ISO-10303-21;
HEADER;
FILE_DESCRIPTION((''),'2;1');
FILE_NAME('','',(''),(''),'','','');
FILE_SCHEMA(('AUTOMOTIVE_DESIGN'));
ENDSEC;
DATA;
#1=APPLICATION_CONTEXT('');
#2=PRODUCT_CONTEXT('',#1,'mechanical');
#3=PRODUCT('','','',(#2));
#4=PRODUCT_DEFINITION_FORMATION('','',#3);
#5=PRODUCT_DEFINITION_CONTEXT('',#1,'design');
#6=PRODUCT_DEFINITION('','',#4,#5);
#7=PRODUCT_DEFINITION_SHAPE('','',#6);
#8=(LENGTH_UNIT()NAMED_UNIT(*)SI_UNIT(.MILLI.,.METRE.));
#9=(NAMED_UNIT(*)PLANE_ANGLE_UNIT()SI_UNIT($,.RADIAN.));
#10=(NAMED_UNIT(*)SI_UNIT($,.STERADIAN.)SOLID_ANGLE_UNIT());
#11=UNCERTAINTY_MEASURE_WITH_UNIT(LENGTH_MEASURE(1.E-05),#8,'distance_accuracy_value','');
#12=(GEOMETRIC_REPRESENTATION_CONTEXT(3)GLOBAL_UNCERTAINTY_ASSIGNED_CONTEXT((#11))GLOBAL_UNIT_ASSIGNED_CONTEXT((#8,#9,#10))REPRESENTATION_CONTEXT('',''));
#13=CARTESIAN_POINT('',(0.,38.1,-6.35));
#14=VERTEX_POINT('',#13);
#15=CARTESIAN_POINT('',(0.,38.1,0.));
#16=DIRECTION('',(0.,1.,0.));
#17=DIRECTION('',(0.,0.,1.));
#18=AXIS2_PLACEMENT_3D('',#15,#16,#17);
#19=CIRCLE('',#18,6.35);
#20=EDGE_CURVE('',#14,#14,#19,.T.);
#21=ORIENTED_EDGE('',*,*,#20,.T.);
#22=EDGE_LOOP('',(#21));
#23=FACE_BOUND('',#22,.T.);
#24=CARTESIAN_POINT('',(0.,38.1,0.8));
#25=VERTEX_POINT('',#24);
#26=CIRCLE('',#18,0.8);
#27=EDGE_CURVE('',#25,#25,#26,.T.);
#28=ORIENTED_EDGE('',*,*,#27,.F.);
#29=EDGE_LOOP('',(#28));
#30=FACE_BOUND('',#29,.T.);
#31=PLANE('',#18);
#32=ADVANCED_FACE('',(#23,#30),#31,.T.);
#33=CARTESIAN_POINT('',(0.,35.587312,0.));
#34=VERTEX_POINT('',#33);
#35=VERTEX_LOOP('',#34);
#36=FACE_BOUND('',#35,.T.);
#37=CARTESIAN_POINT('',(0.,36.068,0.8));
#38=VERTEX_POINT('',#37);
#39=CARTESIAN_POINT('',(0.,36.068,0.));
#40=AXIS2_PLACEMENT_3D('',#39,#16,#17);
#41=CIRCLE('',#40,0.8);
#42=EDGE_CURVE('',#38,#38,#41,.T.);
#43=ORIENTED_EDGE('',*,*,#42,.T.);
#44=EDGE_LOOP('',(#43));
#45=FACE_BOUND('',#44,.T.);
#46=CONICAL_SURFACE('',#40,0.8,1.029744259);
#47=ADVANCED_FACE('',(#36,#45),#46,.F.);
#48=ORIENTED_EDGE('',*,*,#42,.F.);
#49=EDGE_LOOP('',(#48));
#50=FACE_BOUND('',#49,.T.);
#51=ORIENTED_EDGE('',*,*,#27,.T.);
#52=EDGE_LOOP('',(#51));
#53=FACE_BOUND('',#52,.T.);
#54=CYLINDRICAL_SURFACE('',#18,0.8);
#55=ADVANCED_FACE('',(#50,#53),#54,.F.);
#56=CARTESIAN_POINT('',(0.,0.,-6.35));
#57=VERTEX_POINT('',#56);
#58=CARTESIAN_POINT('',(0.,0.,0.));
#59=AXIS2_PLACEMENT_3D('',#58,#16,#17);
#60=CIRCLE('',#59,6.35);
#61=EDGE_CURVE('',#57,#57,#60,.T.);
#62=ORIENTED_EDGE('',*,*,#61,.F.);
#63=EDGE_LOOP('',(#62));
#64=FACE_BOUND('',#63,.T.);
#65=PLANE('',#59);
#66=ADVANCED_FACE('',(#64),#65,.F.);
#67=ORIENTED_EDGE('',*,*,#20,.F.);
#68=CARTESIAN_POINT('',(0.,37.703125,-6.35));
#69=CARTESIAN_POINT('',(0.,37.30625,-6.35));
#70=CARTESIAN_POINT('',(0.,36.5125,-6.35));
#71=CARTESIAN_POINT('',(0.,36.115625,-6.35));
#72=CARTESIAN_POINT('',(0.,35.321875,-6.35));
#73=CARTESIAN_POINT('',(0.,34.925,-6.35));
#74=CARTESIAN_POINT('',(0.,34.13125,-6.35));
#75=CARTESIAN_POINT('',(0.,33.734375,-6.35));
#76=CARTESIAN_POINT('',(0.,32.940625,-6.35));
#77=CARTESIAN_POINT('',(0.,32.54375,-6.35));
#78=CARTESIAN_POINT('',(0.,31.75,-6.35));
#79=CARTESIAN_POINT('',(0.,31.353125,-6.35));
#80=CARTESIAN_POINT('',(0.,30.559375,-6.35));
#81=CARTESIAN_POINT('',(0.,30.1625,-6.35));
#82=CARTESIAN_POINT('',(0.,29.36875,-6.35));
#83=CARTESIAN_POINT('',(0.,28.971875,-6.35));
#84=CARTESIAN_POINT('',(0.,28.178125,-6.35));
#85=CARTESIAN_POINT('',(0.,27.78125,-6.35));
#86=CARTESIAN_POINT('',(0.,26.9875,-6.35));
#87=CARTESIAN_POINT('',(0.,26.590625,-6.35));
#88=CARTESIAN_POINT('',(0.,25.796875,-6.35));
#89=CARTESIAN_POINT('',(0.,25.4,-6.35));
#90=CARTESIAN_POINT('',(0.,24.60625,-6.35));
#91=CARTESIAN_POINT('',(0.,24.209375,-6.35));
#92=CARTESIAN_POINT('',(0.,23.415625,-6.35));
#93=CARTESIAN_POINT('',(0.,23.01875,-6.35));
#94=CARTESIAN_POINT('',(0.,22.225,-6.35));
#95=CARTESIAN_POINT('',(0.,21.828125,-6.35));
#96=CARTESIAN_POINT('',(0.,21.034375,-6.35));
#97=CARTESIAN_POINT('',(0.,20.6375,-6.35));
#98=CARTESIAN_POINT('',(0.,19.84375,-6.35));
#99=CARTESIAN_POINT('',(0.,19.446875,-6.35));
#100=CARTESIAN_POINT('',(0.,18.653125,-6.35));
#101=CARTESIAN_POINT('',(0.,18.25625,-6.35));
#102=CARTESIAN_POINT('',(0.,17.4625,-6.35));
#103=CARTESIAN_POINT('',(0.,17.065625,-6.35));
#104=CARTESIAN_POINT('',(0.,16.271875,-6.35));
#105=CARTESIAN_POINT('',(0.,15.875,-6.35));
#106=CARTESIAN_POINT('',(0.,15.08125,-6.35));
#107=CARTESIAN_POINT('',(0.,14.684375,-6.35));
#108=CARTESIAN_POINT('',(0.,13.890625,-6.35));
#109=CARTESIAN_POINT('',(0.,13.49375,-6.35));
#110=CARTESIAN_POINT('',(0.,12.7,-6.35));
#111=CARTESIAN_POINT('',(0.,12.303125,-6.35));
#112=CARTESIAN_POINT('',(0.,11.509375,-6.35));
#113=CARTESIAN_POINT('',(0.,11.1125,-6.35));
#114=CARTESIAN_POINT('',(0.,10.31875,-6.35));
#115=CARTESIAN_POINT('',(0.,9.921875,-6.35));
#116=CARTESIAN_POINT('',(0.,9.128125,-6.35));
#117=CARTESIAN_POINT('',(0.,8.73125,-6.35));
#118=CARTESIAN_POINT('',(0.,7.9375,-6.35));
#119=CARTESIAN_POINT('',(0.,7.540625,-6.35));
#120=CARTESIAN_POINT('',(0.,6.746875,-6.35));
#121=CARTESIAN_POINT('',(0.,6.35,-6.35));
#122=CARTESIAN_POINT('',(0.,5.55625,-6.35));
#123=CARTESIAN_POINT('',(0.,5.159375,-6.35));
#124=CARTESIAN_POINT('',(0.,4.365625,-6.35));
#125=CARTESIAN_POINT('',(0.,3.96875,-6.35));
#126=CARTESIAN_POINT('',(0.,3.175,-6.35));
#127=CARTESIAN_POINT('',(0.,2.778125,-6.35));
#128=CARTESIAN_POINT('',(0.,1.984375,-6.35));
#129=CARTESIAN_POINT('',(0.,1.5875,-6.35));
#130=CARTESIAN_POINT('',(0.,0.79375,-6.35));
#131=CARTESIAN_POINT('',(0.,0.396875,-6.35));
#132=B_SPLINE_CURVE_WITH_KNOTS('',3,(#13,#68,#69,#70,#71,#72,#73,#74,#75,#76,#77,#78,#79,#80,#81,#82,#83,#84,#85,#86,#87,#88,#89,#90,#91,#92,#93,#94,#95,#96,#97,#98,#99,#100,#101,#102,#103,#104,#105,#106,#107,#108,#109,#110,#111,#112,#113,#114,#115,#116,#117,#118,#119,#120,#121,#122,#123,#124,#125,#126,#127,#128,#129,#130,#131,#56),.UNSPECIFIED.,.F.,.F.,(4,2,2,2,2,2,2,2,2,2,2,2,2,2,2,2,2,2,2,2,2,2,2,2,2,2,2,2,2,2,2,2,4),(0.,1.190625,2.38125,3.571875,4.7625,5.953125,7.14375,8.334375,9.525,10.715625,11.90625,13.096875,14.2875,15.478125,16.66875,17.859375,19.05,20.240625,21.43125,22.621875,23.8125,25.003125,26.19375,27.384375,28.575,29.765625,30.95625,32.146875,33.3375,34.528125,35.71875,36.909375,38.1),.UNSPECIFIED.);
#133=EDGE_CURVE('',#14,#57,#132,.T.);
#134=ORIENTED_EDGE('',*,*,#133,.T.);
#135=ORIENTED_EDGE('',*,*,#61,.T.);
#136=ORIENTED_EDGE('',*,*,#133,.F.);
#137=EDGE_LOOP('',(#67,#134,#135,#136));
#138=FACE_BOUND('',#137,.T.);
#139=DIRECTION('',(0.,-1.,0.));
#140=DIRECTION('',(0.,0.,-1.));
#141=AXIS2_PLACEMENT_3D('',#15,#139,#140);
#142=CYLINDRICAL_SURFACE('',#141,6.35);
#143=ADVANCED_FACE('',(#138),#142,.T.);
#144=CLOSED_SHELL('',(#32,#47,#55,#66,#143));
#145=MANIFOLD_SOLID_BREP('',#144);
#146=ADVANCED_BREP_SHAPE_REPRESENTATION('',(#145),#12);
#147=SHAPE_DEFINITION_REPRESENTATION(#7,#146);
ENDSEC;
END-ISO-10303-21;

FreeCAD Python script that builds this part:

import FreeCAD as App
import Part
import Sketcher
from FreeCAD import Vector
Q = App.Units.Quantity

doc = App.newDocument("Part")
body = doc.addObject("PartDesign::Body", "Body")

sketch1 = body.newObject("Sketcher::SketchObject", "Sketch")
sketch1.AttachmentSupport = (doc.getObject("XZ_Plane"), [""])
sketch1.MapMode = "FlatFace"
sketch1.addGeometry(Part.Circle(Vector(0, 0, 0), Vector(0, 0, 1), 6.35), False)
sketch1.addConstraint(Sketcher.Constraint("Coincident", 0, 3, -1, 1))
sketch1.addConstraint(Sketcher.Constraint("Diameter", 0, Q("0.5 in")))
pad1 = body.newObject("PartDesign::Pad", "Pad")
pad1.Profile = sketch1
pad1.Length = Q("1.5 in")
pad1.Reversed = True

sketch2 = body.newObject("Sketcher::SketchObject", "Sketch001")
sketch2.AttachmentSupport = (doc.getObject("XZ_Plane"), [""])
sketch2.MapMode = "FlatFace"
sketch2.AttachmentOffset = App.Placement(Vector(0, 0, -1.5 * 25.4), App.Rotation())
sketch2.addGeometry(Part.Circle(Vector(0, 0, 0), Vector(0, 0, 1), 0.8), False)
sketch2.addConstraint(Sketcher.Constraint("Coincident", 0, 3, -1, 1))
sketch2.addConstraint(Sketcher.Constraint("Diameter", 0, Q("1.6 mm")))
doc.recompute()
hole = body.newObject("PartDesign::Hole", "Hole")
hole.Profile = sketch2
hole.ThreadType = "None"
hole.Diameter = 1.6
hole.DepthType = "Dimension"
hole.Depth = Q("0.08 in")
hole.DrillPoint = "Angled"
hole.DrillPointAngle = 118
hole.Reversed = True

doc.recompute()
